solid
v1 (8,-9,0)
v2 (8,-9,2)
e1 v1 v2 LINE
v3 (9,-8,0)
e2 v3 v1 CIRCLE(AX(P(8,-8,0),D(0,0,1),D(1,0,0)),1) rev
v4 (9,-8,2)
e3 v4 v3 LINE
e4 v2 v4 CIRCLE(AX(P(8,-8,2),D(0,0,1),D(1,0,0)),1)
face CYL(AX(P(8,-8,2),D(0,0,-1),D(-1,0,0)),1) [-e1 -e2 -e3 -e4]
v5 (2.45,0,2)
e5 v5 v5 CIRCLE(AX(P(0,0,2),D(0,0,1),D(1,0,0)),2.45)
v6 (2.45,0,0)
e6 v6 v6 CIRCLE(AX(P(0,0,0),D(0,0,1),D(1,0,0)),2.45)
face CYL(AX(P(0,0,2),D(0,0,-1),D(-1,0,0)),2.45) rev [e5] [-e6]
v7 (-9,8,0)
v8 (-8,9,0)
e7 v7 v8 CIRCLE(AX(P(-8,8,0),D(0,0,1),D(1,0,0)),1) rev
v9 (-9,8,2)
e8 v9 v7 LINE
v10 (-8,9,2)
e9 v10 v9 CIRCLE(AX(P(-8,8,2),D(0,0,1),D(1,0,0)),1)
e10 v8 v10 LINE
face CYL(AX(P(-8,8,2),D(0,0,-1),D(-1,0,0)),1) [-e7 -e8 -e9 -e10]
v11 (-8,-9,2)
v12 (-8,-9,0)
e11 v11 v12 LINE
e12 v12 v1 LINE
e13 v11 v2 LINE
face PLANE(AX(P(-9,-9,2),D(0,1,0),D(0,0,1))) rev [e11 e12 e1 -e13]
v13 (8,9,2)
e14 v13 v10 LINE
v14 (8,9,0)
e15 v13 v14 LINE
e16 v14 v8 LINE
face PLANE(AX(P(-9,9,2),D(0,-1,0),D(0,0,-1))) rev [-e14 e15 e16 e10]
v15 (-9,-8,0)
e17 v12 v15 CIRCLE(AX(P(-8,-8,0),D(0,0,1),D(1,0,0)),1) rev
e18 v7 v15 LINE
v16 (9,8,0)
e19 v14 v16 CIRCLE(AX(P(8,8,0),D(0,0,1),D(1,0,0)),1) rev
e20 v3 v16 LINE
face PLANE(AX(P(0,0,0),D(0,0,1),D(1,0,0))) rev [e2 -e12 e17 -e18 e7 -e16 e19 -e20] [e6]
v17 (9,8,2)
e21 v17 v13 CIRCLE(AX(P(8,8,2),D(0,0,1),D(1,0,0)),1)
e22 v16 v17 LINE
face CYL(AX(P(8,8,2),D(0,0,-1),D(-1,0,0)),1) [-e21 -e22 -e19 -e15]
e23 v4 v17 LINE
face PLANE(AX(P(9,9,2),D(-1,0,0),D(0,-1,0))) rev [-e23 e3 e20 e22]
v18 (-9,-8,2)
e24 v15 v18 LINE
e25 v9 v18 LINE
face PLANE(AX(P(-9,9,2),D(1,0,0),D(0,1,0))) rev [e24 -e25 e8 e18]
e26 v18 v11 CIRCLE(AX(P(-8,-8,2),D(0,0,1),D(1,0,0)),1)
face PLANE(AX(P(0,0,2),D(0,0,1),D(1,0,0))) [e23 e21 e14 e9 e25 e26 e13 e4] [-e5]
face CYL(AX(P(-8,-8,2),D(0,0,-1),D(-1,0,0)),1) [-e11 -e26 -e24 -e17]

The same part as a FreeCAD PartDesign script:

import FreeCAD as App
import Part
import Sketcher
from FreeCAD import Vector


def edges_at(feature, points):
    """Names of the edges that pass closest to the given points."""
    edges = feature.Shape.Edges
    near = lambda p: min(range(len(edges)), key=lambda i: edges[i].distToShape(Part.Vertex(*p))[0])
    return sorted({f"Edge{near(p) + 1}" for p in points})


def add_polygon(sketch, points):
    """Adds a closed chain of lines whose ends are joined by coincident constraints."""
    first, n = sketch.GeometryCount, len(points)
    for a, b in zip(points, points[1:] + points[:1]):
        sketch.addGeometry(Part.LineSegment(App.Vector(*a, 0), App.Vector(*b, 0)), False)
    for i in range(n):
        sketch.addConstraint(Sketcher.Constraint("Coincident", first + i, 2, first + (i + 1) % n, 1))

doc = App.newDocument("Part")
body = doc.addObject("PartDesign::Body", "Body")

sketch1 = doc.addObject("Sketcher::SketchObject", "Sketch")
body.addObject(sketch1)
sketch1.AttachmentSupport = (doc.XY_Plane, [""])
sketch1.MapMode = "FlatFace"
add_polygon(sketch1, [(-9, 9), (-9, -9), (9, -9), (9, 9)])
sketch1.addGeometry(Part.Circle(Vector(0, 0, 0), Vector(0, 0, 1), 2.5), False)
sketch1.addConstraint([
    Sketcher.Constraint("Vertical", 0),
    Sketcher.Constraint("Horizontal", 1),
    Sketcher.Constraint("Vertical", 2),
    Sketcher.Constraint("Horizontal", 3),
    Sketcher.Constraint("Coincident", 4, 3, -1, 1),
    Sketcher.Constraint("Symmetric", 0, 2, 2, 2, -1, 1),
    Sketcher.Constraint("Equal", 3, 0),
    Sketcher.Constraint("Diameter", 4, 4.9),
    Sketcher.Constraint("DistanceX", 1, 1, 1, 2, 18.0),
])
pad1 = doc.addObject("PartDesign::Pad", "Pad")
body.addObject(pad1)
pad1.Profile = sketch1
pad1.Length = 2
doc.recompute()

fillet = doc.addObject("PartDesign::Fillet", "Fillet")
body.addObject(fillet)
fillet.Base = (pad1, edges_at(pad1, [
    (9, -9, 1),
    (-9, -9, 1),
    (-9, 9, 1),
    (9, 9, 1),
]))
fillet.Radius = 1

doc.recompute()
